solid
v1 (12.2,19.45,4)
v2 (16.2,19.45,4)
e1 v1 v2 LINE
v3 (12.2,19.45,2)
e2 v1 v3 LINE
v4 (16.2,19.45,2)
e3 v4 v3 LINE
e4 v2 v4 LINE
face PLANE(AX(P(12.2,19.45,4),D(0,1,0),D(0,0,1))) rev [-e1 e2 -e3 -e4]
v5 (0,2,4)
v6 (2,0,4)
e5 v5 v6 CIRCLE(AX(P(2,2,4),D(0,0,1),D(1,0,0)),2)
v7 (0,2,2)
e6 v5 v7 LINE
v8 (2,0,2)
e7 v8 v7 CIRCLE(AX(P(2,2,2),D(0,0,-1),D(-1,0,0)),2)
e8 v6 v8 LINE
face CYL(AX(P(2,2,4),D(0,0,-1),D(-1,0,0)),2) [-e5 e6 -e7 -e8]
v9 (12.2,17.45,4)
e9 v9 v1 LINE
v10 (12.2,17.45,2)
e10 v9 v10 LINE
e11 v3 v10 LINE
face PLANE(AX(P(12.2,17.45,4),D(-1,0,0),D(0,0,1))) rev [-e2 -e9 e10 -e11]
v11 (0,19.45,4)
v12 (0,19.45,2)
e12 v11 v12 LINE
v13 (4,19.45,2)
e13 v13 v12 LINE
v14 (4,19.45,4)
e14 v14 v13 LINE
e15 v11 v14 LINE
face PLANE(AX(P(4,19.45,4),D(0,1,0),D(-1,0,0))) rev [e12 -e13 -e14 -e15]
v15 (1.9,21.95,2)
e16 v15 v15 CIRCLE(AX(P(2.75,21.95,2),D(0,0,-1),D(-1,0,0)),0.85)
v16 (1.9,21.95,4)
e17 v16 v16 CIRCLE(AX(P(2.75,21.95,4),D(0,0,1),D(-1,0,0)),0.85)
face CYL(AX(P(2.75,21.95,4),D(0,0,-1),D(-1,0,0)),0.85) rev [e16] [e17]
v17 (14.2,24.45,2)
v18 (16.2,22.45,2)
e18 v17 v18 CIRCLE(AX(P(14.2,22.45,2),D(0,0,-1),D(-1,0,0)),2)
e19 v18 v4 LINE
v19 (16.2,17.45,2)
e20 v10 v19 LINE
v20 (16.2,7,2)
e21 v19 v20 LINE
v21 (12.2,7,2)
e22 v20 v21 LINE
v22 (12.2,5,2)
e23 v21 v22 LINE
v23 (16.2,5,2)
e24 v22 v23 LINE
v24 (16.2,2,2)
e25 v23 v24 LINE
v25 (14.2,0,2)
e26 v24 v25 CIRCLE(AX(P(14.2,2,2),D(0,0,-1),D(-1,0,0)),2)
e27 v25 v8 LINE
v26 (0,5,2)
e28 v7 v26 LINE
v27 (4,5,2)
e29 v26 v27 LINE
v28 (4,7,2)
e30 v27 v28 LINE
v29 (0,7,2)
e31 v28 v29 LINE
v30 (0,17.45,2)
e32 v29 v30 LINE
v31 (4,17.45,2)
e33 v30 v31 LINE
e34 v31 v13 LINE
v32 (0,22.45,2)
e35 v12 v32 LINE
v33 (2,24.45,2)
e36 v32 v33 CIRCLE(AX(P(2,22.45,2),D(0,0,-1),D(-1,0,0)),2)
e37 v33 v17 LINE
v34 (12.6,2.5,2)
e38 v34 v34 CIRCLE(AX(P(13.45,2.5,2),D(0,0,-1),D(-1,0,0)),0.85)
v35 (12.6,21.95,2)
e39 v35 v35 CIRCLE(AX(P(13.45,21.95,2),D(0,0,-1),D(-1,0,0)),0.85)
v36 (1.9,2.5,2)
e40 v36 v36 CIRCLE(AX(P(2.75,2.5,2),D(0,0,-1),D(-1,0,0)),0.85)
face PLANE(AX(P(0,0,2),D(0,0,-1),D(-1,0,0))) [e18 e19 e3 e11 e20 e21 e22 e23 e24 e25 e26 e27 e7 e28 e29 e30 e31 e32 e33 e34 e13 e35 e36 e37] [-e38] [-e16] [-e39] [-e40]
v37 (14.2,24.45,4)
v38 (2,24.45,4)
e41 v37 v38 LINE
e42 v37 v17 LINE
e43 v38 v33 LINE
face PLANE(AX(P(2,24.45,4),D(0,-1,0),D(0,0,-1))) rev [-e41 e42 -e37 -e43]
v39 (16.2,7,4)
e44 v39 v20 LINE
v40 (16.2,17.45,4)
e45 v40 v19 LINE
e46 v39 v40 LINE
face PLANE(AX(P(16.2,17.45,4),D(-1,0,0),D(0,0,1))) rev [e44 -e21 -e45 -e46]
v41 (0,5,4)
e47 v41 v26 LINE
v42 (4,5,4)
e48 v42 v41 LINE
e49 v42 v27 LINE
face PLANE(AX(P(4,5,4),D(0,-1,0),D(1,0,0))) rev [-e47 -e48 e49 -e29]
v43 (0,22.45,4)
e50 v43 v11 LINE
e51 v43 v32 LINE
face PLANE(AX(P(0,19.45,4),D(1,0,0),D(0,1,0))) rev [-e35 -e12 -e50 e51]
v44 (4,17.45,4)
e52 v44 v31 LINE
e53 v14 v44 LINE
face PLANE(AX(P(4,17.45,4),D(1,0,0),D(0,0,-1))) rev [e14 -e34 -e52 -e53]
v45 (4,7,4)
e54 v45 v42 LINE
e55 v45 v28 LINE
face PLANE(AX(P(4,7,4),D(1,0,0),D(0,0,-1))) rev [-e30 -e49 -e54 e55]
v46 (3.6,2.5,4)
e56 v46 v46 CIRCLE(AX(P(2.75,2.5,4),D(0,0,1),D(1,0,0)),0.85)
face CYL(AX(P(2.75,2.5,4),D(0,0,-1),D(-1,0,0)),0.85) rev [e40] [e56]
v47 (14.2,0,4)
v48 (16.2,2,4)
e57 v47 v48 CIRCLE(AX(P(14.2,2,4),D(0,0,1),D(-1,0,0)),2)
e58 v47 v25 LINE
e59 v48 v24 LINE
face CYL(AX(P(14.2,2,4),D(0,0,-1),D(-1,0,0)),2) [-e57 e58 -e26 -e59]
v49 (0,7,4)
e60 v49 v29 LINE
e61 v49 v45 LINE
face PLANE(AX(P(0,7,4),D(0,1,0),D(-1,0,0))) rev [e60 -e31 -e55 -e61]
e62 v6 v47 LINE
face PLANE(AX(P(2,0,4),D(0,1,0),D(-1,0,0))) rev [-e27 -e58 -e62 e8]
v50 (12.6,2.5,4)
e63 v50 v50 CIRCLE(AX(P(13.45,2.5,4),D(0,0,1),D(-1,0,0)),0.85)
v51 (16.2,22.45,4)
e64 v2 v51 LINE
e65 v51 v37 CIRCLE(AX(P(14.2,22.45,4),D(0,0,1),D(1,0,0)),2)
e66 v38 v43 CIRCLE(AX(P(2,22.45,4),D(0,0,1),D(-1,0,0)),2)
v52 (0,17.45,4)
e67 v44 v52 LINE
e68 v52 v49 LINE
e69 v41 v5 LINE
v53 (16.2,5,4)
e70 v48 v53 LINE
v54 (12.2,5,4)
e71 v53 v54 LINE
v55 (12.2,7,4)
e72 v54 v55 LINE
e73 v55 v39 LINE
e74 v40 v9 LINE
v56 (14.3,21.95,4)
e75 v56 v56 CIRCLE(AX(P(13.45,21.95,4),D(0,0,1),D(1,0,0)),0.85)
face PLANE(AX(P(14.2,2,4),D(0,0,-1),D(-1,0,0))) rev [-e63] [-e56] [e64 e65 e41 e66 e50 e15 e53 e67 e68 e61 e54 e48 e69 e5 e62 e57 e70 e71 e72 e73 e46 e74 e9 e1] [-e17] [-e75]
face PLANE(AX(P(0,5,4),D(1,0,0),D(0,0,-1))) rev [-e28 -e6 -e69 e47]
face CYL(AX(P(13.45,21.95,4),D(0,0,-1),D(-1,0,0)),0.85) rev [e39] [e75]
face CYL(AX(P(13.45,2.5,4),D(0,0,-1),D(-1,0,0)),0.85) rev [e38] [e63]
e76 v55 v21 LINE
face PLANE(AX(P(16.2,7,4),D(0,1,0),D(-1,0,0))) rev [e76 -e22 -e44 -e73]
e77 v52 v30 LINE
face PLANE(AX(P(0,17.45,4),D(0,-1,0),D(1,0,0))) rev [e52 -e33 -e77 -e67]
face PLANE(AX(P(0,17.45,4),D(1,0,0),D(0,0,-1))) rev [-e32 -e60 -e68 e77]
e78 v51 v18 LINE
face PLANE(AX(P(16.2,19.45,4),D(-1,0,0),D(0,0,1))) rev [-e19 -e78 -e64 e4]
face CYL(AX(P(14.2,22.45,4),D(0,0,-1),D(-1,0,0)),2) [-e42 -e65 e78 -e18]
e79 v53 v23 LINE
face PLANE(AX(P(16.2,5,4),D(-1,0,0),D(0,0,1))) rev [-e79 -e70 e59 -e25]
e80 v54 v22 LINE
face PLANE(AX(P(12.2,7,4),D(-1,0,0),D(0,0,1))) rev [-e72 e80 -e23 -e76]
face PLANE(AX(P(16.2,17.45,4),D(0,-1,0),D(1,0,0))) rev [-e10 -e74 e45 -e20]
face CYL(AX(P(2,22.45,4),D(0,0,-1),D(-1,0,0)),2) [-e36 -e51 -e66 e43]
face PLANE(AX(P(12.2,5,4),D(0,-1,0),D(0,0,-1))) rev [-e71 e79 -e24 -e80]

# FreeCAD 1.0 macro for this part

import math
import FreeCAD as App
import Part
import Sketcher
from FreeCAD import Vector


def add_polygon(sketch, points):
    """Adds a closed chain of lines whose ends are joined by coincident constraints."""
    first, n = sketch.GeometryCount, len(points)
    for a, b in zip(points, points[1:] + points[:1]):
        sketch.addGeometry(Part.LineSegment(App.Vector(*a, 0), App.Vector(*b, 0)), False)
    for i in range(n):
        sketch.addConstraint(Sketcher.Constraint("Coincident", first + i, 2, first + (i + 1) % n, 1))

doc = App.newDocument("Part")
body = doc.addObject("PartDesign::Body", "Body")

sketch1 = body.newObject("Sketcher::SketchObject", "Sketch")
sketch1.AttachmentSupport = (doc.getObject("XY_Plane"), [""])
sketch1.MapMode = "FlatFace"
sketch1.addGeometry([
    Part.LineSegment(Vector(0, 17.4, 0), Vector(0, 7, 0)),
    Part.LineSegment(Vector(0, 7, 0), Vector(4, 7, 0)),
    Part.LineSegment(Vector(4, 7, 0), Vector(4, 5, 0)),
    Part.LineSegment(Vector(4, 5, 0), Vector(0, 5, 0)),
    Part.LineSegment(Vector(0, 5, 0), Vector(0, 2, 0)),
    Part.ArcOfCircle(Part.Circle(Vector(2, 2, 0), Vector(0, 0, 1), 2), math.radians(-180), math.radians(-90)),
    Part.LineSegment(Vector(2, 0, 0), Vector(14.2, 0, 0)),
    Part.ArcOfCircle(Part.Circle(Vector(14.2, 2, 0), Vector(0, 0, 1), 2), math.radians(-90), math.radians(0)),
    Part.LineSegment(Vector(16.2, 2, 0), Vector(16.2, 5, 0)),
    Part.LineSegment(Vector(16.2, 5, 0), Vector(12.2, 5, 0)),
    Part.LineSegment(Vector(12.2, 5, 0), Vector(12.2, 7, 0)),
    Part.LineSegment(Vector(12.2, 7, 0), Vector(16.2, 7, 0)),
    Part.LineSegment(Vector(16.2, 7, 0), Vector(16.2, 17.4, 0)),
    Part.LineSegment(Vector(16.2, 17.4, 0), Vector(12.2, 17.4, 0)),
    Part.LineSegment(Vector(12.2, 17.4, 0), Vector(12.2, 19.4, 0)),
    Part.LineSegment(Vector(12.2, 19.4, 0), Vector(16.2, 19.4, 0)),
    Part.LineSegment(Vector(16.2, 19.4, 0), Vector(16.2, 22.4, 0)),
    Part.ArcOfCircle(Part.Circle(Vector(14.2, 22.4, 0), Vector(0, 0, 1), 2), math.radians(0), math.radians(90)),
    Part.LineSegment(Vector(14.2, 24.4, 0), Vector(2, 24.4, 0)),
    Part.ArcOfCircle(Part.Circle(Vector(2, 22.4, 0), Vector(0, 0, 1), 2), math.radians(90), math.radians(180)),
    Part.LineSegment(Vector(0, 22.4, 0), Vector(0, 19.4, 0)),
    Part.LineSegment(Vector(0, 19.4, 0), Vector(4, 19.4, 0)),
    Part.LineSegment(Vector(4, 19.4, 0), Vector(4, 17.4, 0)),
    Part.LineSegment(Vector(4, 17.4, 0), Vector(0, 17.4, 0)),
    Part.Circle(Vector(2.8, 2.5, 0), Vector(0, 0, 1), 0.8),
    Part.Circle(Vector(13.4, 2.5, 0), Vector(0, 0, 1), 0.8),
    Part.Circle(Vector(2.8, 21.9, 0), Vector(0, 0, 1), 0.8),
    Part.Circle(Vector(13.4, 21.9, 0), Vector(0, 0, 1), 0.8),
], False)
sketch1.addConstraint([
    Sketcher.Constraint("Coincident", 0, 2, 1, 1),
    Sketcher.Constraint("Coincident", 1, 2, 2, 1),
    Sketcher.Constraint("Coincident", 2, 2, 3, 1),
    Sketcher.Constraint("Coincident", 3, 2, 4, 1),
    Sketcher.Constraint("Tangent", 4, 2, 5, 1),
    Sketcher.Constraint("Tangent", 5, 2, 6, 1),
    Sketcher.Constraint("Tangent", 6, 2, 7, 1),
    Sketcher.Constraint("Tangent", 7, 2, 8, 1),
    Sketcher.Constraint("Coincident", 8, 2, 9, 1),
    Sketcher.Constraint("Coincident", 9, 2, 10, 1),
    Sketcher.Constraint("Coincident", 10, 2, 11, 1),
    Sketcher.Constraint("Coincident", 11, 2, 12, 1),
    Sketcher.Constraint("Coincident", 12, 2, 13, 1),
    Sketcher.Constraint("Coincident", 13, 2, 14, 1),
    Sketcher.Constraint("Coincident", 14, 2, 15, 1),
    Sketcher.Constraint("Coincident", 15, 2, 16, 1),
    Sketcher.Constraint("Tangent", 16, 2, 17, 1),
    Sketcher.Constraint("Tangent", 17, 2, 18, 1),
    Sketcher.Constraint("Tangent", 18, 2, 19, 1),
    Sketcher.Constraint("Tangent", 19, 2, 20, 1),
    Sketcher.Constraint("Coincident", 20, 2, 21, 1),
    Sketcher.Constraint("Coincident", 21, 2, 22, 1),
    Sketcher.Constraint("Coincident", 22, 2, 23, 1),
    Sketcher.Constraint("Coincident", 23, 2, 0, 1),
    Sketcher.Constraint("Vertical", 0),
    Sketcher.Constraint("Horizontal", 1),
    Sketcher.Constraint("Vertical", 2),
    Sketcher.Constraint("Horizontal", 3),
    Sketcher.Constraint("Vertical", 4),
    Sketcher.Constraint("Horizontal", 6),
    Sketcher.Constraint("Vertical", 8),
    Sketcher.Constraint("Horizontal", 9),
    Sketcher.Constraint("Vertical", 10),
    Sketcher.Constraint("Horizontal", 11),
    Sketcher.Constraint("Vertical", 12),
    Sketcher.Constraint("Horizontal", 13),
    Sketcher.Constraint("Vertical", 14),
    Sketcher.Constraint("Horizontal", 15),
    Sketcher.Constraint("Vertical", 16),
    Sketcher.Constraint("Horizontal", 18),
    Sketcher.Constraint("Vertical", 20),
    Sketcher.Constraint("Horizontal", 21),
    Sketcher.Constraint("Vertical", 22),
    Sketcher.Constraint("Horizontal", 23),
    Sketcher.Constraint("Equal", 5, 7),
    Sketcher.Constraint("Equal", 7, 17),
    Sketcher.Constraint("Equal", 17, 19),
    Sketcher.Constraint("Equal", 24, 25),
    Sketcher.Constraint("Equal", 25, 26),
    Sketcher.Constraint("Equal", 26, 27),
    Sketcher.Constraint("PointOnObject", 0, 2, -2),
    Sketcher.Constraint("PointOnObject", 3, 2, -2),
    Sketcher.Constraint("PointOnObject", 5, 2, -1),
    Sketcher.Constraint("PointOnObject", 19, 2, -2),
    Sketcher.Constraint("Horizontal", 24, 3, 25, 3),
    Sketcher.Constraint("Horizontal", 26, 3, 27, 3),
    Sketcher.Constraint("Horizontal", 3, 2, 8, 2),
    Sketcher.Constraint("Horizontal", 1, 2, 10, 2),
    Sketcher.Constraint("Horizontal", 15, 2, 20, 2),
    Sketcher.Constraint("Horizontal", 13, 2, 22, 2),
    Sketcher.Constraint("Vertical", 7, 3, 17, 3),
    Sketcher.Constraint("Vertical", 24, 3, 26, 3),
    Sketcher.Constraint("Vertical", 25, 3, 27, 3),
    Sketcher.Constraint("Vertical", 8, 2, 11, 2),
    Sketcher.Constraint("Vertical", 10, 2, 13, 2),
    Sketcher.Constraint("Vertical", 2, 2, 21, 2),
    Sketcher.Constraint("Equal", 3, 9),
    Sketcher.Constraint("Equal", 10, 14),
    Sketcher.Constraint("Equal", 8, 16),
    Sketcher.Constraint("Radius", 5, 2.0),
    Sketcher.Constraint("Diameter", 24, 1.7),
    Sketcher.Constraint("DistanceX", 1, 1, 1, 2, 4.0),
    Sketcher.Constraint("DistanceY", 2, 2, 2, 1, 2.0),
    Sketcher.Constraint("DistanceY", 4, 2, 4, 1, 3.0),
    Sketcher.Constraint("DistanceX", 6, 1, 6, 2, 12.2),
    Sketcher.Constraint("DistanceY", 0, 2, 0, 1, 10.45),
    Sketcher.Constraint("DistanceY", -1, 1, 24, 3, 2.5),
    Sketcher.Constraint("DistanceX", 24, 3, 25, 3, 10.7),
    Sketcher.Constraint("DistanceY", 26, 3, 19, 3, 0.5),
    Sketcher.Constraint("DistanceX", -1, 1, 24, 3, 2.75),
])
pad1 = body.newObject("PartDesign::Pad", "Pad")
pad1.Profile = sketch1
pad1.Length = 4

sketch2 = body.newObject("Sketcher::SketchObject", "Sketch001")
sketch2.AttachmentSupport = (doc.getObject("XY_Plane"), [""])
sketch2.MapMode = "FlatFace"
add_polygon(sketch2, [(16, 24), (16, 0), (0, 0), (0, 24)])
sketch2.addConstraint([
    Sketcher.Constraint("Vertical", 0),
    Sketcher.Constraint("Horizontal", 1),
    Sketcher.Constraint("Vertical", 2),
    Sketcher.Constraint("Horizontal", 3),
    Sketcher.Constraint("Coincident", 1, 2, -1, 1),
    Sketcher.Constraint("DistanceX", 1, 2, 1, 1, 16.2),
    Sketcher.Constraint("DistanceY", 0, 2, 0, 1, 24.45),
])
pocket1 = body.newObject("PartDesign::Pocket", "Pocket")
pocket1.Profile = sketch2
pocket1.Length = 2
pocket1.Reversed = True

doc.recompute()
